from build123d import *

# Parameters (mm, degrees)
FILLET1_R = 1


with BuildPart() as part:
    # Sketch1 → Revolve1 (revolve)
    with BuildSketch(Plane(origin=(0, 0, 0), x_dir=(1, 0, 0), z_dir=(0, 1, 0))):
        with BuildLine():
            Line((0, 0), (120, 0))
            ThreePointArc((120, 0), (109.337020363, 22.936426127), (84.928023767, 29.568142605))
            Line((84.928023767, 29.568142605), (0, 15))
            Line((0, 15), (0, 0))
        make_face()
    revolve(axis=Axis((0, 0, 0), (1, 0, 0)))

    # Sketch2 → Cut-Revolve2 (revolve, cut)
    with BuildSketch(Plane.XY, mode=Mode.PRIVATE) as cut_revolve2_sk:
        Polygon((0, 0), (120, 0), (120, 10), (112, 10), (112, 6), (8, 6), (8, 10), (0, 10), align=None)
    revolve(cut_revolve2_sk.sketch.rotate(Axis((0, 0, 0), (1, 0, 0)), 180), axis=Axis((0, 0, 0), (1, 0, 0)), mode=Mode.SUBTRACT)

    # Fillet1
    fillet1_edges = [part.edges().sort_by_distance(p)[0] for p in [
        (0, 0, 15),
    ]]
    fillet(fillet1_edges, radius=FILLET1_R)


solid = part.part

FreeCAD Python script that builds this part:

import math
import FreeCAD as App
import Part
import Sketcher

V = App.Vector


def edges_at(feature, points):
    """Names of the edges that pass closest to the given points."""
    edges = feature.Shape.Edges
    near = lambda p: min(range(len(edges)), key=lambda i: edges[i].distToShape(Part.Vertex(*p))[0])
    return sorted({f"Edge{near(p) + 1}" for p in points})

doc = App.newDocument("Part")
body = doc.addObject("PartDesign::Body", "Body")

sketch1 = body.newObject("Sketcher::SketchObject", "Sketch")
sketch1.AttachmentSupport = (doc.getObject("XZ_Plane"), [""])
sketch1.MapMode = "FlatFace"
sketch1.addGeometry([
    Part.LineSegment(V(0, 0, 0), V(120, 0, 0)),
    Part.ArcOfCircle(Part.Circle(V(90, 0, 0), V(0, 0, 1), 30), math.radians(-99.733511), math.radians(0)),
    Part.LineSegment(V(84.928024, -29.568143, 0), V(0, -15, 0)),
    Part.LineSegment(V(0, -15, 0), V(0, 0, 0)),
], False)
sketch1.addConstraint([
    Sketcher.Constraint("Coincident", 0, 2, 1, 2),
    Sketcher.Constraint("Tangent", 1, 1, 2, 1),
    Sketcher.Constraint("Coincident", 2, 2, 3, 1),
    Sketcher.Constraint("Coincident", 3, 2, 0, 1),
    Sketcher.Constraint("Horizontal", 0),
    Sketcher.Constraint("Vertical", 3),
    Sketcher.Constraint("Coincident", 3, 2, -1, 1),
    Sketcher.Constraint("PointOnObject", 1, 3, -1),
    Sketcher.Constraint("Radius", 1, 30.0),
    Sketcher.Constraint("DistanceX", 0, 1, 0, 2, 120.0),
    Sketcher.Constraint("DistanceY", 3, 1, 3, 2, 15.0),
])
revolution = body.newObject("PartDesign::Revolution", "Revolution")
revolution.Profile = sketch1
revolution.ReferenceAxis = (sketch1, ["H_Axis"])
revolution.Angle = 360

sketch2 = body.newObject("Sketcher::SketchObject", "Sketch001")
sketch2.AttachmentSupport = (doc.getObject("XY_Plane"), [""])
sketch2.MapMode = "FlatFace"
sketch2.addGeometry([
    Part.LineSegment(V(0, 0, 0), V(120, 0, 0)),
    Part.LineSegment(V(120, 0, 0), V(120, 10, 0)),
    Part.LineSegment(V(120, 10, 0), V(112, 10, 0)),
    Part.LineSegment(V(112, 10, 0), V(112, 6, 0)),
    Part.LineSegment(V(112, 6, 0), V(8, 6, 0)),
    Part.LineSegment(V(8, 6, 0), V(8, 10, 0)),
    Part.LineSegment(V(8, 10, 0), V(0, 10, 0)),
    Part.LineSegment(V(0, 10, 0), V(0, 0, 0)),
], False)
sketch2.addConstraint([
    Sketcher.Constraint("Coincident", 0, 2, 1, 1),
    Sketcher.Constraint("Coincident", 1, 2, 2, 1),
    Sketcher.Constraint("Coincident", 2, 2, 3, 1),
    Sketcher.Constraint("Coincident", 3, 2, 4, 1),
    Sketcher.Constraint("Coincident", 4, 2, 5, 1),
    Sketcher.Constraint("Coincident", 5, 2, 6, 1),
    Sketcher.Constraint("Coincident", 6, 2, 7, 1),
    Sketcher.Constraint("Coincident", 7, 2, 0, 1),
    Sketcher.Constraint("Horizontal", 0),
    Sketcher.Constraint("Vertical", 1),
    Sketcher.Constraint("Horizontal", 2),
    Sketcher.Constraint("Vertical", 3),
    Sketcher.Constraint("Horizontal", 4),
    Sketcher.Constraint("Vertical", 5),
    Sketcher.Constraint("Horizontal", 6),
    Sketcher.Constraint("Vertical", 7),
    Sketcher.Constraint("Coincident", 7, 2, -1, 1),
    Sketcher.Constraint("Horizontal", 2, 2, 5, 2),
    Sketcher.Constraint("Equal", 2, 6),
    Sketcher.Constraint("DistanceX", 0, 1, 0, 2, 120.0),
    Sketcher.Constraint("DistanceX", 2, 2, 2, 1, 8.0),
    Sketcher.Constraint("DistanceY", 1, 1, 1, 2, 10.0),
    Sketcher.Constraint("DistanceY", 3, 2, 3, 1, 4.0),
])
groove = body.newObject("PartDesign::Groove", "Groove")
groove.Profile = sketch2
groove.ReferenceAxis = (sketch2, ["H_Axis"])
groove.Angle = 360
doc.recompute()

fillet = body.newObject("PartDesign::Fillet", "Fillet")
fillet.Base = (groove, edges_at(groove, [(0, 0, 15)]))
fillet.Radius = 1

doc.recompute()
